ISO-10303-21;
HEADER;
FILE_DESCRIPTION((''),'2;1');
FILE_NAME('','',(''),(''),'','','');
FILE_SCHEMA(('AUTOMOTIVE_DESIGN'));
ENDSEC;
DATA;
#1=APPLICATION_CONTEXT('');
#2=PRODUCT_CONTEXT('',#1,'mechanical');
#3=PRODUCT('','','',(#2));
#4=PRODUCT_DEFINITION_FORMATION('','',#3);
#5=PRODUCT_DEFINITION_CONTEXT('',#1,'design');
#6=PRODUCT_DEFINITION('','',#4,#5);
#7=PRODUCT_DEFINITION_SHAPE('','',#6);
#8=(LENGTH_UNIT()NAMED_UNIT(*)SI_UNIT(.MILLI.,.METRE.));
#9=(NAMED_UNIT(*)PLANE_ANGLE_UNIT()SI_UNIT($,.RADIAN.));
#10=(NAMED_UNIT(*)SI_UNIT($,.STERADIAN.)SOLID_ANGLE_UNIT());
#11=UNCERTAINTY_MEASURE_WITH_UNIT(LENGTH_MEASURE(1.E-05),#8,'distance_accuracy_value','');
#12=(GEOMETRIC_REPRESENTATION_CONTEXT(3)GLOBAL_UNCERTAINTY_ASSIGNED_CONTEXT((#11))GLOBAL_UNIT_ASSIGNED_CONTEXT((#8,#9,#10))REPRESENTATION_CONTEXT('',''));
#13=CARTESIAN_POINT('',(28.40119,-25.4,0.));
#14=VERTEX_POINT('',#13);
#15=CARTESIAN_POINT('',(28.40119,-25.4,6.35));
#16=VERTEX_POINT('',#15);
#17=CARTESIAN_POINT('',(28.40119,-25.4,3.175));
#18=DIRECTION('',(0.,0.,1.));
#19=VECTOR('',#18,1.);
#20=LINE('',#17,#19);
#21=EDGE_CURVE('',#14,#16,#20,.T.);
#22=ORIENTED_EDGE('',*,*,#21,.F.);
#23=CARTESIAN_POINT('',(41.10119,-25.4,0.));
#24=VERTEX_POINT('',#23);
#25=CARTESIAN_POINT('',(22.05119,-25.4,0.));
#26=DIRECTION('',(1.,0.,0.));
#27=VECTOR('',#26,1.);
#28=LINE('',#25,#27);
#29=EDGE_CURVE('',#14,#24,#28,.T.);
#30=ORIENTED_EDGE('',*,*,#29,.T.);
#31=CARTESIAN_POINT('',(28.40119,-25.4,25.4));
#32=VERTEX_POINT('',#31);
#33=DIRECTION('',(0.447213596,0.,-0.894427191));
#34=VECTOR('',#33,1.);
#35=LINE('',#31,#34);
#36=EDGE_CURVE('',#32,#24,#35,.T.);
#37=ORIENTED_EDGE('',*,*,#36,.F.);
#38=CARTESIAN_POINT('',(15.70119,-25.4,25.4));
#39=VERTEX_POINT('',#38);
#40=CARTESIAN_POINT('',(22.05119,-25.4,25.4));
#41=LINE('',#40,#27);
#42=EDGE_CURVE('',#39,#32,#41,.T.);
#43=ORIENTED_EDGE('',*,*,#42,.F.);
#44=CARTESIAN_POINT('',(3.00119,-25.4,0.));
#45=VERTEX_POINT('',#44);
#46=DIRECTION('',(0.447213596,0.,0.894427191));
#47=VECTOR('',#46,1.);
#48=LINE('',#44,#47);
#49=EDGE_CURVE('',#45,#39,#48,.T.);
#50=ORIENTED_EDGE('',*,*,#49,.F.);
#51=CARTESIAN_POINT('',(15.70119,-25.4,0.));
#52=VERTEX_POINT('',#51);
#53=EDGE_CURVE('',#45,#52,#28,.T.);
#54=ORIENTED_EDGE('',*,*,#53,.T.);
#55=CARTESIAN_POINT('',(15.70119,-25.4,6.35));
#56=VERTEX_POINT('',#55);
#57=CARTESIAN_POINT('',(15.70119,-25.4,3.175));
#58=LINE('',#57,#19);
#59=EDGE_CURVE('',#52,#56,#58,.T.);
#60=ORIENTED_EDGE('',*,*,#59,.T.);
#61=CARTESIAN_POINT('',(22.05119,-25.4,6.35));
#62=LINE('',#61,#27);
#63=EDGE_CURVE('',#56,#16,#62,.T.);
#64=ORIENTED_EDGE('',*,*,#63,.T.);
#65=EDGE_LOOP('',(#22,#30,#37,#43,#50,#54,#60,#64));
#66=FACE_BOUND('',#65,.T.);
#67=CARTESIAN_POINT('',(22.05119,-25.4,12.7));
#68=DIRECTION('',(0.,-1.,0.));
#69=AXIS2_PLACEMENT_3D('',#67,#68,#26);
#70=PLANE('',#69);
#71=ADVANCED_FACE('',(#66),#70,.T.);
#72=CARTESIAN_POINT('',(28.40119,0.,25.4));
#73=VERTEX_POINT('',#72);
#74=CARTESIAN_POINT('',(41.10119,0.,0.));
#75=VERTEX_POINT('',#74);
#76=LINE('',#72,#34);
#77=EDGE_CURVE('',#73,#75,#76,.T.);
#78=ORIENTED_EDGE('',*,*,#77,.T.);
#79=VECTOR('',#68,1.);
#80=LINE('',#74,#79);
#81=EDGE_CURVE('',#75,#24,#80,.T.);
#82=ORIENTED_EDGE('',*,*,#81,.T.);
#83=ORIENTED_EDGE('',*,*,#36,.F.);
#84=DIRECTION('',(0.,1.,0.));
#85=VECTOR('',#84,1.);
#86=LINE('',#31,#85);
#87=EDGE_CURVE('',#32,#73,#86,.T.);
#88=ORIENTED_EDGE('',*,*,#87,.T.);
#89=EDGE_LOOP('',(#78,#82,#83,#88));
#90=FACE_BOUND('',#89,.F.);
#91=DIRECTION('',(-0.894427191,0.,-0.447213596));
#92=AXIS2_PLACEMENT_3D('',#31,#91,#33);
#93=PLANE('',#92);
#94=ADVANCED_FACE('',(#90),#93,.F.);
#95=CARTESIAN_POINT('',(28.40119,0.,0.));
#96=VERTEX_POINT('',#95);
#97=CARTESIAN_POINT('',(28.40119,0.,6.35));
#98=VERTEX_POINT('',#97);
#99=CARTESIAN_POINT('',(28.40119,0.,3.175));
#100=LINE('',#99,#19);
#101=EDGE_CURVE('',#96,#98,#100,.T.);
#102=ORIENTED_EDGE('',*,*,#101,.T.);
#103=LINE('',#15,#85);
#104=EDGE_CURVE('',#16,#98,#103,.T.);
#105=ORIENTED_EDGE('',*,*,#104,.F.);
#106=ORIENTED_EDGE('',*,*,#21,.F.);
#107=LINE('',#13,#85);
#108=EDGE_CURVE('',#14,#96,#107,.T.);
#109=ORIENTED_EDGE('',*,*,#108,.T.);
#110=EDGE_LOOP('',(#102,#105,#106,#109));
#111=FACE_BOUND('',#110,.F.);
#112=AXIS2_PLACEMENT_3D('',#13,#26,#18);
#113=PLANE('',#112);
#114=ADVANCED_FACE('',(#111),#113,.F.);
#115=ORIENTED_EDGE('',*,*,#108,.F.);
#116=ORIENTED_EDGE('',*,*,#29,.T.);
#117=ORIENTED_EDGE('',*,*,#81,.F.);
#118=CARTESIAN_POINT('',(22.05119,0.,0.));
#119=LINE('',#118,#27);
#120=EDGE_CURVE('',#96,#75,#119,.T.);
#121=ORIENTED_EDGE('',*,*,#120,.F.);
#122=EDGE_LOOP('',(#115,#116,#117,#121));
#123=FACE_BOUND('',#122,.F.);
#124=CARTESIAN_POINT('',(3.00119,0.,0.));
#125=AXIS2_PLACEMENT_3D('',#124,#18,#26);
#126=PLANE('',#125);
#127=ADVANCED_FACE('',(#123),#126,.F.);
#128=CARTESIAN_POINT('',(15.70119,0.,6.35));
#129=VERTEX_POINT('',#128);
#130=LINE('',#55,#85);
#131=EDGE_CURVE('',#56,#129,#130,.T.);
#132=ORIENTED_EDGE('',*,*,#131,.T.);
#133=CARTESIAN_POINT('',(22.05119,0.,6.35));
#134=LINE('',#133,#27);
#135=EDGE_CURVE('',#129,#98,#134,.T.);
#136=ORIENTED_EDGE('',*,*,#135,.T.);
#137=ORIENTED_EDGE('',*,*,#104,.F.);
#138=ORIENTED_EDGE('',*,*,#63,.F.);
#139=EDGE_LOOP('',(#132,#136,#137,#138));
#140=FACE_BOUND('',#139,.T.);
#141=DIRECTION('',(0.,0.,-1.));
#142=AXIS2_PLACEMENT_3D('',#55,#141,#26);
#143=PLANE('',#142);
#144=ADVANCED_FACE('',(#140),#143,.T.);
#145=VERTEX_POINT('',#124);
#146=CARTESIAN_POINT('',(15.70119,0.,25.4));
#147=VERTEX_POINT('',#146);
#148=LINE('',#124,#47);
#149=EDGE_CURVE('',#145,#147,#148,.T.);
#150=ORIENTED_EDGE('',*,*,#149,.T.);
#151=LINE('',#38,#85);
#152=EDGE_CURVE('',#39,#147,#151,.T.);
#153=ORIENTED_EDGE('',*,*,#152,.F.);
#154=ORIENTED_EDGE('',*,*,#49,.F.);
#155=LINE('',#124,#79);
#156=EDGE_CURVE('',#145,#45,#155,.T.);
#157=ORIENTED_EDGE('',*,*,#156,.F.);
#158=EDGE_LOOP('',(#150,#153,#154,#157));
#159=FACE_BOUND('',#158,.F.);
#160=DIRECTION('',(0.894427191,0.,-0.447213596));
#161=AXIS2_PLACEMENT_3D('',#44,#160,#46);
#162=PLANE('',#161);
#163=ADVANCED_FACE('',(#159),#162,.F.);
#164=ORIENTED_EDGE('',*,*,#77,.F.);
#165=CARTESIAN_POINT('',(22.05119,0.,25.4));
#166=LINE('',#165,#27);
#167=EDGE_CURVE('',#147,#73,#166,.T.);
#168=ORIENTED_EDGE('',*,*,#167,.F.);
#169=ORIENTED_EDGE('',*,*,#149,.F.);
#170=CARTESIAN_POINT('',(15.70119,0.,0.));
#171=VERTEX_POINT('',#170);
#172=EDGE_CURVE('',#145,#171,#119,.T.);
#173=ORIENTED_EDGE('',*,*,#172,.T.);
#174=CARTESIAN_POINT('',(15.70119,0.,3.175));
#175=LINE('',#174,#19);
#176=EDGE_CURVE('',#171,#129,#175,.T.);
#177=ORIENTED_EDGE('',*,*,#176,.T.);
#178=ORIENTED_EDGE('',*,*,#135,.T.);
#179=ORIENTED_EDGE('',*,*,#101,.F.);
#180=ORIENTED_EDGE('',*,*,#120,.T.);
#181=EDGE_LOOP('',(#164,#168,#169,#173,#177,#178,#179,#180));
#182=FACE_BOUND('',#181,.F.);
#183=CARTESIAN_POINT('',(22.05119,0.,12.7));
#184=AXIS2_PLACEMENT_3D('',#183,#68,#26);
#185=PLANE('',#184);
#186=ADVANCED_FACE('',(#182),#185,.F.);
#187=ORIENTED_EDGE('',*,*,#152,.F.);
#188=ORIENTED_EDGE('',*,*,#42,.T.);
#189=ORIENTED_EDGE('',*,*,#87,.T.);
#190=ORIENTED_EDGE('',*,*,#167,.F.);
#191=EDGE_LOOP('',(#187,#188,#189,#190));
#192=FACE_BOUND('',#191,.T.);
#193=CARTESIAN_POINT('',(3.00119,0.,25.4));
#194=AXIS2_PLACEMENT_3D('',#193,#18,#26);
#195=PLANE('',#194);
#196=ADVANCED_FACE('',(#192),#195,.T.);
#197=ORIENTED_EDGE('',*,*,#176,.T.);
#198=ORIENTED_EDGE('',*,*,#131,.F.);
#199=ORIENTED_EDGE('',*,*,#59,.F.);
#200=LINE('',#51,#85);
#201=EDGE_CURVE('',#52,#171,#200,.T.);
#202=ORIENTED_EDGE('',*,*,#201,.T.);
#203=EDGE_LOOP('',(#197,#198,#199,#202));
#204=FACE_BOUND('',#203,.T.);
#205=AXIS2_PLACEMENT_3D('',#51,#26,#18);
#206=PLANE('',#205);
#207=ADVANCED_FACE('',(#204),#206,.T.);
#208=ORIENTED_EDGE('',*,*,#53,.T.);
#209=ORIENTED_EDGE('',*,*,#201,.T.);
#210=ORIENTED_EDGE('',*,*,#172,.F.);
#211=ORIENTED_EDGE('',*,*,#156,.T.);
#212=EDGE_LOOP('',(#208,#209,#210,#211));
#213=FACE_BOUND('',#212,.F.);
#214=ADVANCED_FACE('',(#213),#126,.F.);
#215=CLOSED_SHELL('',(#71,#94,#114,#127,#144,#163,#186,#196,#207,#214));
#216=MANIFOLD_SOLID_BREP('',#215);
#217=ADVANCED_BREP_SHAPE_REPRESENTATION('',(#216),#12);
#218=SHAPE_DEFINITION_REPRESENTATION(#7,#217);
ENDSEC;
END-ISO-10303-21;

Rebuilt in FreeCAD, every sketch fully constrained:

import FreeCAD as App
import Part
import Sketcher
from FreeCAD import Vector
Q = App.Units.Quantity


def add_polygon(sketch, points):
    """Adds a closed chain of lines whose ends are joined by coincident constraints."""
    first, n = sketch.GeometryCount, len(points)
    for a, b in zip(points, points[1:] + points[:1]):
        sketch.addGeometry(Part.LineSegment(App.Vector(*a, 0), App.Vector(*b, 0)), False)
    for i in range(n):
        sketch.addConstraint(Sketcher.Constraint("Coincident", first + i, 2, first + (i + 1) % n, 1))

doc = App.newDocument("Part")
body = doc.addObject("PartDesign::Body", "Body")

sketch1 = body.newObject("Sketcher::SketchObject", "Sketch")
sketch1.AttachmentSupport = (doc.getObject("XZ_Plane"), [""])
sketch1.MapMode = "FlatFace"
add_polygon(sketch1, [(3, 25), (3, 0), (41, 0), (41, 25)])
sketch1.addConstraint([
    Sketcher.Constraint("Vertical", 0),
    Sketcher.Constraint("Horizontal", 1),
    Sketcher.Constraint("Vertical", 2),
    Sketcher.Constraint("Horizontal", 3),
    Sketcher.Constraint("PointOnObject", 0, 2, -1),
    Sketcher.Constraint("DistanceY", 0, 2, 0, 1, Q("1 in")),
    Sketcher.Constraint("DistanceX", 1, 1, 1, 2, Q("1.5 in")),
    Sketcher.Constraint("DistanceX", -1, 1, 0, 2, 3.00119),
])
pad1 = body.newObject("PartDesign::Pad", "Pad")
pad1.Profile = sketch1
pad1.Length = Q("1 in")

sketch2 = body.newObject("Sketcher::SketchObject", "Sketch001")
sketch2.AttachmentSupport = (doc.getObject("XZ_Plane"), [""])
sketch2.MapMode = "FlatFace"
sketch2.AttachmentOffset = App.Placement(Vector(0, 0, 1 * 25.4), App.Rotation())
add_polygon(sketch2, [(16, 6), (16, 0), (28, 0), (28, 6)])
sketch2.addConstraint([
    Sketcher.Constraint("Vertical", 0),
    Sketcher.Constraint("Horizontal", 1),
    Sketcher.Constraint("Vertical", 2),
    Sketcher.Constraint("Horizontal", 3),
    Sketcher.Constraint("PointOnObject", 0, 2, -1),
    Sketcher.Constraint("DistanceX", 1, 1, 1, 2, Q("0.5 in")),
    Sketcher.Constraint("DistanceY", 0, 2, 0, 1, Q("0.25 in")),
    Sketcher.Constraint("DistanceX", -1, 1, 0, 2, 15.70119),
])
pocket1 = body.newObject("PartDesign::Pocket", "Pocket")
pocket1.Profile = sketch2
pocket1.Length = Q("1 in")

sketch3 = body.newObject("Sketcher::SketchObject", "Sketch002")
sketch3.AttachmentSupport = (doc.getObject("XZ_Plane"), [""])
sketch3.MapMode = "FlatFace"
sketch3.AttachmentOffset = App.Placement(Vector(0, 0, 1 * 25.4), App.Rotation())
add_polygon(sketch3, [(16, 25), (3, 25), (3, 0)])
sketch3.addConstraint([
    Sketcher.Constraint("Horizontal", 0),
    Sketcher.Constraint("Vertical", 1),
    Sketcher.Constraint("PointOnObject", 1, 2, -1),
    Sketcher.Constraint("DistanceY", 1, 2, 1, 1, Q("1 in")),
    Sketcher.Constraint("DistanceX", 0, 2, 0, 1, Q("0.5 in")),
    Sketcher.Constraint("DistanceX", -1, 1, 0, 2, 3.00119),
])
pocket2 = body.newObject("PartDesign::Pocket", "Pocket001")
pocket2.Profile = sketch3
pocket2.Length = Q("1 in")

sketch4 = body.newObject("Sketcher::SketchObject", "Sketch003")
sketch4.AttachmentSupport = (doc.getObject("XZ_Plane"), [""])
sketch4.MapMode = "FlatFace"
sketch4.AttachmentOffset = App.Placement(Vector(0, 0, 1 * 25.4), App.Rotation())
add_polygon(sketch4, [(41, 0), (41, 25), (28, 25)])
sketch4.addConstraint([
    Sketcher.Constraint("Vertical", 0),
    Sketcher.Constraint("Horizontal", 1),
    Sketcher.Constraint("PointOnObject", 2, 2, -1),
    Sketcher.Constraint("DistanceY", 0, 1, 0, 2, Q("1 in")),
    Sketcher.Constraint("DistanceX", 1, 2, 1, 1, Q("0.5 in")),
    Sketcher.Constraint("DistanceX", -1, 1, 0, 2, 41.10119),
])
pocket3 = body.newObject("PartDesign::Pocket", "Pocket002")
pocket3.Profile = sketch4
pocket3.Length = Q("1 in")

doc.recompute()
